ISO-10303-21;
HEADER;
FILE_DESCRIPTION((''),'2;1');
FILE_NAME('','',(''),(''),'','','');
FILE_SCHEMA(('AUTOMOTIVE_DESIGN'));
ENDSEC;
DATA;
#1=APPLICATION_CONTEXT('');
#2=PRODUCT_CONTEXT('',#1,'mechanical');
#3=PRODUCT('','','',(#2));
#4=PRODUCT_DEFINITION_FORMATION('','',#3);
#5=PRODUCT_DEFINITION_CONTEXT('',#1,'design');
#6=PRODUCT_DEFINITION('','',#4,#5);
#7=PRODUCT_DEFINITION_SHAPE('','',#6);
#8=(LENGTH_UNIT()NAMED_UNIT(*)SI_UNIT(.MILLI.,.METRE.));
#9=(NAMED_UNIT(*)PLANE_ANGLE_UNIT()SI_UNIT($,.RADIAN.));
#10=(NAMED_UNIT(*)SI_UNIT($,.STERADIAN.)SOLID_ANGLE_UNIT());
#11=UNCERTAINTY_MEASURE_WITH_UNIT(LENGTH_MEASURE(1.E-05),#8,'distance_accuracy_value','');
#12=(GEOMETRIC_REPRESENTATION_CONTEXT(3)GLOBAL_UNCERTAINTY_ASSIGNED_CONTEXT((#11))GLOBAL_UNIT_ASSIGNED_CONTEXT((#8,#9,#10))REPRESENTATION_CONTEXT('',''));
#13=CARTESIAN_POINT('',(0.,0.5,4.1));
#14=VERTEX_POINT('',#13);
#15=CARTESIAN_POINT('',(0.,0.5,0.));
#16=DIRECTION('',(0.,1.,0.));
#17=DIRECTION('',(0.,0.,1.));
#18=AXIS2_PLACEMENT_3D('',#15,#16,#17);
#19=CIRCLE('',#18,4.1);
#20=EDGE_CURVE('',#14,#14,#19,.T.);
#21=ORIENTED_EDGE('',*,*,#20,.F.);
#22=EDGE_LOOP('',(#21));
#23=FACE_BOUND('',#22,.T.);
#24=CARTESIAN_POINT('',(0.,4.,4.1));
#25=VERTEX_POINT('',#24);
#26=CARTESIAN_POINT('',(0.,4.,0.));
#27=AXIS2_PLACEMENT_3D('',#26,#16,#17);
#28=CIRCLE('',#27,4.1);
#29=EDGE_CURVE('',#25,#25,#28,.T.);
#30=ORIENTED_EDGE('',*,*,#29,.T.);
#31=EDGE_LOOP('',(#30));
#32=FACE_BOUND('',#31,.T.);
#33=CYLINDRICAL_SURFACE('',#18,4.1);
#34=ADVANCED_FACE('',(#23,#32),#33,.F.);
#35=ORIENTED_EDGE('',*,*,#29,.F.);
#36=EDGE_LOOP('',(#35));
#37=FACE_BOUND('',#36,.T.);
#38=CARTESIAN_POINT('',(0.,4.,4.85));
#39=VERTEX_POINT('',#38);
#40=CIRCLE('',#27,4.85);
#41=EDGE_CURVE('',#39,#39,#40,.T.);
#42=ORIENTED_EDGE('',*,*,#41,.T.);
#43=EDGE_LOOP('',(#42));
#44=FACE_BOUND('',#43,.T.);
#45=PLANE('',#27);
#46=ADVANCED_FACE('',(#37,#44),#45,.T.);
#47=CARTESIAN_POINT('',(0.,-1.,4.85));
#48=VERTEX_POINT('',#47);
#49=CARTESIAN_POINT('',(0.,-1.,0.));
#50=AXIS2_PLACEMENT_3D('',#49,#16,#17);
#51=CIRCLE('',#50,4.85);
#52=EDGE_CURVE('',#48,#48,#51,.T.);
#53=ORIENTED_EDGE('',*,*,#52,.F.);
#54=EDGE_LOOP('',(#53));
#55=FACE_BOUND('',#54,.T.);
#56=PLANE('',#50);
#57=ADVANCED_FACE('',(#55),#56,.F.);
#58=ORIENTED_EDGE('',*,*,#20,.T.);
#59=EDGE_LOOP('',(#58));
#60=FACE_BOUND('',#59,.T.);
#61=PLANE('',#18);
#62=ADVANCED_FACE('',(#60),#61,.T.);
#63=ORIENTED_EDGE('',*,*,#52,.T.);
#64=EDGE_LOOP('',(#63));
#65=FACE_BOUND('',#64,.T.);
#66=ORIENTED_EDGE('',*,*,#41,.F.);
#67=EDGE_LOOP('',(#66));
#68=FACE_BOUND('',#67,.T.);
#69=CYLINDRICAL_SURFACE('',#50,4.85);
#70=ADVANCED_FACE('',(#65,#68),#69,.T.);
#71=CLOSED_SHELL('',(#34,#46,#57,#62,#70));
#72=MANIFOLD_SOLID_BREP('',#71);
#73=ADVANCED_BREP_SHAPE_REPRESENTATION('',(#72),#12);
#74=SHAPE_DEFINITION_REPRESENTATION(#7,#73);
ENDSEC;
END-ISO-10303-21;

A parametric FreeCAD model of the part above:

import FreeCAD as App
import Part
import Sketcher
Q = App.Units.Quantity

doc = App.newDocument("Part")
params = doc.addObject("Spreadsheet::Sheet", "Params")
for row, (alias, value) in enumerate([
    ("sketch1_diameter", "9.7 mm"),
    ("pad1_length", "4 mm"),
    ("pad1_length2", "1 mm"),
    ("sketch2_diameter", "8.2 mm"),
    ("pocket1_length", "3.5 mm"),
], start=1):
    params.set(f"A{row}", alias)
    params.set(f"B{row}", "=" + value)
    params.setAlias(f"B{row}", alias)

body = doc.addObject("PartDesign::Body", "Body")

# Sketch on XZ plane
sketch1 = doc.addObject("Sketcher::SketchObject", "Sketch")
body.addObject(sketch1)
sketch1.AttachmentSupport = (doc.XZ_Plane, [""])
sketch1.MapMode = "FlatFace"
sketch1.addGeometry(Part.Circle(App.Vector(0, 0, 0), App.Vector(0, 0, 1), 4.85), False)
sketch1.addConstraint([
    Sketcher.Constraint("Coincident", 0, 3, -1, 1),
    Sketcher.Constraint("Diameter", 0, Q("9.7 mm")),
])
sketch1.setExpression("Constraints[1]", "Params.sketch1_diameter")
pad1 = doc.addObject("PartDesign::Pad", "Pad")
body.addObject(pad1)
pad1.Profile = sketch1
pad1.Type = "TwoLengths"
pad1.setExpression("Length", "Params.pad1_length")
pad1.setExpression("Length2", "Params.pad1_length2")
pad1.Reversed = True

# Sketch on XZ plane
sketch2 = doc.addObject("Sketcher::SketchObject", "Sketch001")
body.addObject(sketch2)
sketch2.AttachmentSupport = (doc.XZ_Plane, [""])
sketch2.MapMode = "FlatFace"
sketch2.AttachmentOffset = App.Placement(App.Vector(0, 0, -4), App.Rotation())
sketch2.addGeometry(Part.Circle(App.Vector(0, 0, 0), App.Vector(0, 0, 1), 4.1), False)
sketch2.addConstraint([
    Sketcher.Constraint("Coincident", 0, 3, -1, 1),
    Sketcher.Constraint("Diameter", 0, Q("8.2 mm")),
])
sketch2.setExpression("Constraints[1]", "Params.sketch2_diameter")
pocket1 = doc.addObject("PartDesign::Pocket", "Pocket")
body.addObject(pocket1)
pocket1.Profile = sketch2
pocket1.setExpression("Length", "Params.pocket1_length")
pocket1.Reversed = True

doc.recompute()
